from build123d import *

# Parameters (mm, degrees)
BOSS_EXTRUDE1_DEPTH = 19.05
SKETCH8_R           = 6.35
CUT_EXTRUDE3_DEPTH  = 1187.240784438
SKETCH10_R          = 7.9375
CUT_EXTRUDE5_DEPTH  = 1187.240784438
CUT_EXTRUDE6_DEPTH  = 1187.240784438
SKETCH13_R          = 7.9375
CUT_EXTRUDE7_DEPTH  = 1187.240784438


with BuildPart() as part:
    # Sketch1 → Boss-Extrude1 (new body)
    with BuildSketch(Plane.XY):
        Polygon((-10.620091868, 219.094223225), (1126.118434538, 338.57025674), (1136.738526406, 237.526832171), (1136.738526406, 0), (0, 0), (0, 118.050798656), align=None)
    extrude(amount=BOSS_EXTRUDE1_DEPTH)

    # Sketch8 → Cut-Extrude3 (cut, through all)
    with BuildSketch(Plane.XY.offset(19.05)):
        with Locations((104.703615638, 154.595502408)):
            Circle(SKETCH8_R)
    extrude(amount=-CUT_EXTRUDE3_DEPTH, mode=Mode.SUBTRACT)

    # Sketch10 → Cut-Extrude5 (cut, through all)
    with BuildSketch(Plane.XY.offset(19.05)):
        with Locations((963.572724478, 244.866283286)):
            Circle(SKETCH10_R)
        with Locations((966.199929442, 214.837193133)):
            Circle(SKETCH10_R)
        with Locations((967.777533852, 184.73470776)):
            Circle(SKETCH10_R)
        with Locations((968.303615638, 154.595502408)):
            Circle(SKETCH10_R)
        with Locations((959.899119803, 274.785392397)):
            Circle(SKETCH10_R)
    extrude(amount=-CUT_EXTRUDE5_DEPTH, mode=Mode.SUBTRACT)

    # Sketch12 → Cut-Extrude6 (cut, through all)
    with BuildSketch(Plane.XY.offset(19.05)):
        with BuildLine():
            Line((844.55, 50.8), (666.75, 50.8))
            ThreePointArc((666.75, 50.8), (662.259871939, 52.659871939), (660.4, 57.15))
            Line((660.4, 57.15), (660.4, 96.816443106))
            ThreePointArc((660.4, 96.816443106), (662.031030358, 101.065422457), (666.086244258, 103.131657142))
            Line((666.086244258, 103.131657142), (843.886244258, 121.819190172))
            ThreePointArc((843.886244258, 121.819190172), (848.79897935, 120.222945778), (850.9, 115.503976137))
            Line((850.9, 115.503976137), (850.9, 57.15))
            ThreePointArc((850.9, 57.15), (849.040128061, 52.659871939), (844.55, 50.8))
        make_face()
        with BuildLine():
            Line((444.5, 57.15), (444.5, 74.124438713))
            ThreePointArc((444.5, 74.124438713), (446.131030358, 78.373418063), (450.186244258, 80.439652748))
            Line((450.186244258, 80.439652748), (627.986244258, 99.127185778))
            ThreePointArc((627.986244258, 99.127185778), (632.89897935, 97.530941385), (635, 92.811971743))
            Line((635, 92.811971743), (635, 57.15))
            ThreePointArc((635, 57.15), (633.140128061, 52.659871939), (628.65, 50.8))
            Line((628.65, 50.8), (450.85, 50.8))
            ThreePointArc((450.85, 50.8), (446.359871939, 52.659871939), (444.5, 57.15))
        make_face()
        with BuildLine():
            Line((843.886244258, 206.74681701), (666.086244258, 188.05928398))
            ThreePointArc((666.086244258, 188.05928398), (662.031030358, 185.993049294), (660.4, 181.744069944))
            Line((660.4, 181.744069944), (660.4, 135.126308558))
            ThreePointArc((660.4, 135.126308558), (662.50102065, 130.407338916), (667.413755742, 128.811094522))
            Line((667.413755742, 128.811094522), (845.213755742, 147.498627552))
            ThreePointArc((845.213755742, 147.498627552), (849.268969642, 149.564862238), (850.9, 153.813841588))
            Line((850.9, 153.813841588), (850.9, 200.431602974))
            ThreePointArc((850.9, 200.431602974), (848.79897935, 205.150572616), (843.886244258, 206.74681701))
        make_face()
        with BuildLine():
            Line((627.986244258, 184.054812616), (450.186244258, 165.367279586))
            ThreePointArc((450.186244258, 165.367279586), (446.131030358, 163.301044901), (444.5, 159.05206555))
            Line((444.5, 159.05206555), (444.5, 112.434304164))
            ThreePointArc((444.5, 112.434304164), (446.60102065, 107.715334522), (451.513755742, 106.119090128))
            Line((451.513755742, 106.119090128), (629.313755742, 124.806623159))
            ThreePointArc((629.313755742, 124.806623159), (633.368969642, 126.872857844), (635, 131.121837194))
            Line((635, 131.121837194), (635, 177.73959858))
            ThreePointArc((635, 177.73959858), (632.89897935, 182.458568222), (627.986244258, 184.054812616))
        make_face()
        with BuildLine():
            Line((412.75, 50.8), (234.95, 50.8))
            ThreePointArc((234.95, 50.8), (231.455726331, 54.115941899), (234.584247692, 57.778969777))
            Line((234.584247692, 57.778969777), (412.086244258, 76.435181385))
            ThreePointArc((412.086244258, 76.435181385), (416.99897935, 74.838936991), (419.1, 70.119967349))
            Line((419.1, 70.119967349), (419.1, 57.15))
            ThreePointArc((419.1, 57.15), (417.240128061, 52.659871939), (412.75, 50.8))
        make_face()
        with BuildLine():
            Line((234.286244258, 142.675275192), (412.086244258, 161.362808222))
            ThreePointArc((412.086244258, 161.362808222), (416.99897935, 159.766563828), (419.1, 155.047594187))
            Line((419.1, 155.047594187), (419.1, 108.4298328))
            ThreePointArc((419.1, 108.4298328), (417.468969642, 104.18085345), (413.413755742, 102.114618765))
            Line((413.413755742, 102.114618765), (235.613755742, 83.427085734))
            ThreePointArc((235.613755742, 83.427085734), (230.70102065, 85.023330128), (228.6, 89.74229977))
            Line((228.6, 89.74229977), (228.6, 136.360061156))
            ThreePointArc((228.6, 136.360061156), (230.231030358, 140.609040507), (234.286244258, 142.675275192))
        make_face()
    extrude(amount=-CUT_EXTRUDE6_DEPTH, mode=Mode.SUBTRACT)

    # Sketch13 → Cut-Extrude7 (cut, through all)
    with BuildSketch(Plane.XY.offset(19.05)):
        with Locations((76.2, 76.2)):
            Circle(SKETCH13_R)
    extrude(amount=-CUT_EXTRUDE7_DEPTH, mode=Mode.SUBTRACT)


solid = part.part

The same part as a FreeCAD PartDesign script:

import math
import FreeCAD as App
import Part
import Sketcher
from FreeCAD import Vector
Q = App.Units.Quantity

doc = App.newDocument("Part")
body = doc.addObject("PartDesign::Body", "Body")

# Sketch on XY plane
sketch1 = body.newObject("Sketcher::SketchObject", "Sketch")
sketch1.AttachmentSupport = (doc.getObject("XY_Plane"), [""])
sketch1.MapMode = "FlatFace"
sketch1.addGeometry([
    Part.LineSegment(Vector(1126, 339, 0), Vector(-11, 219, 0)),  # 0
    Part.LineSegment(Vector(-11, 219, 0), Vector(0, 118, 0)),  # 1
    Part.LineSegment(Vector(0, 118, 0), Vector(0, 0, 0)),  # 2
    Part.LineSegment(Vector(0, 0, 0), Vector(1137, 0, 0)),  # 3
    Part.LineSegment(Vector(1137, 0, 0), Vector(1137, 238, 0)),  # 4
    Part.LineSegment(Vector(1137, 238, 0), Vector(1126, 339, 0)),  # 5
], False)
sketch1.addConstraint([
    Sketcher.Constraint("Coincident", 0, 2, 1, 1),
    Sketcher.Constraint("Coincident", 1, 2, 2, 1),
    Sketcher.Constraint("Coincident", 2, 2, 3, 1),
    Sketcher.Constraint("Coincident", 3, 2, 4, 1),
    Sketcher.Constraint("Coincident", 4, 2, 5, 1),
    Sketcher.Constraint("Coincident", 5, 2, 0, 1),
    Sketcher.Constraint("Vertical", 2),
    Sketcher.Constraint("Horizontal", 3),
    Sketcher.Constraint("Vertical", 4),
    Sketcher.Constraint("Coincident", 2, 2, -1, 1),
    Sketcher.Constraint("Perpendicular", 0, 1),
    Sketcher.Constraint("Parallel", 1, 5),
    Sketcher.Constraint("Equal", 1, 5),
    Sketcher.Constraint("Distance", 0, Q("45 in")),
    Sketcher.Constraint("Distance", 1, Q("4 in")),
    Sketcher.Constraint("Angle", 0, Q("-174 deg")),
    Sketcher.Constraint("DistanceY", 2, 2, 2, 1, 118.050799),
])
pad1 = body.newObject("PartDesign::Pad", "Pad")
pad1.Profile = sketch1
pad1.Length = Q("0.75 in")

# Sketch on XY plane
sketch2 = body.newObject("Sketcher::SketchObject", "Sketch001")
sketch2.AttachmentSupport = (doc.getObject("XY_Plane"), [""])
sketch2.MapMode = "FlatFace"
sketch2.AttachmentOffset = App.Placement(Vector(0, 0, 0.75 * 25.4), App.Rotation())
sketch2.addGeometry(Part.Circle(Vector(105, 155, 0), Vector(0, 0, 1), 6), False)
sketch2.addConstraint([
    Sketcher.Constraint("Diameter", 0, Q("0.5 in")),
    Sketcher.Constraint("DistanceX", -1, 1, 0, 3, 104.703616),
    Sketcher.Constraint("DistanceY", -1, 1, 0, 3, 154.595502),
])
pocket1 = body.newObject("PartDesign::Pocket", "Pocket")
pocket1.Profile = sketch2
pocket1.Type = "ThroughAll"

# Sketch on XY plane
sketch3 = body.newObject("Sketcher::SketchObject", "Sketch002")
sketch3.AttachmentSupport = (doc.getObject("XY_Plane"), [""])
sketch3.MapMode = "FlatFace"
sketch3.AttachmentOffset = App.Placement(Vector(0, 0, 0.75 * 25.4), App.Rotation())
sketch3.addGeometry([
    Part.Circle(Vector(964, 245, 0), Vector(0, 0, 1), 8),  # 0
    Part.Circle(Vector(966, 215, 0), Vector(0, 0, 1), 8),  # 1
    Part.Circle(Vector(968, 185, 0), Vector(0, 0, 1), 8),  # 2
    Part.Circle(Vector(968, 155, 0), Vector(0, 0, 1), 8),  # 3
    Part.Circle(Vector(960, 275, 0), Vector(0, 0, 1), 8),  # 4
], False)
sketch3.addConstraint([
    Sketcher.Constraint("Equal", 0, 1),
    Sketcher.Constraint("Equal", 1, 2),
    Sketcher.Constraint("Equal", 2, 3),
    Sketcher.Constraint("Equal", 3, 4),
    Sketcher.Constraint("Diameter", 0, Q("0.625 in")),
    Sketcher.Constraint("DistanceY", 1, 3, 4, 3, 59.948199),
    Sketcher.Constraint("DistanceX", -1, 1, 1, 3, 966.199929),
    Sketcher.Constraint("DistanceX", -1, 1, 4, 3, 959.89912),
    Sketcher.Constraint("DistanceY", 1, 3, 0, 3, 30.02909),
    Sketcher.Constraint("DistanceX", 0, 3, 2, 3, 4.204809),
    Sketcher.Constraint("DistanceX", 2, 3, 3, 3, 0.526082),
    Sketcher.Constraint("DistanceY", 3, 3, 1, 3, 60.241691),
    Sketcher.Constraint("DistanceX", -1, 1, 0, 3, 963.572724),
    Sketcher.Constraint("DistanceY", -1, 1, 0, 3, 244.866283),
    Sketcher.Constraint("DistanceY", -1, 1, 2, 3, 184.734708),
])
pocket2 = body.newObject("PartDesign::Pocket", "Pocket001")
pocket2.Profile = sketch3
pocket2.Type = "ThroughAll"

# Sketch on XY plane
sketch4 = body.newObject("Sketcher::SketchObject", "Sketch003")
sketch4.AttachmentSupport = (doc.getObject("XY_Plane"), [""])
sketch4.MapMode = "FlatFace"
sketch4.AttachmentOffset = App.Placement(Vector(0, 0, 0.75 * 25.4), App.Rotation())
sketch4.addGeometry([
    Part.LineSegment(Vector(666.8, 50.8, 0), Vector(844.5, 50.8, 0)),  # 0
    Part.ArcOfCircle(Part.Circle(Vector(844.6, 57.1, 0), Vector(0, 0, 1), 6.3), math.radians(-90), math.radians(0)),  # 1
    Part.LineSegment(Vector(850.9, 57.1, 0), Vector(850.9, 115.5, 0)),  # 2
    Part.ArcOfCircle(Part.Circle(Vector(844.5, 115.5, 0), Vector(0, 0, 1), 6.4), math.radians(0), math.radians(96)),  # 3
    Part.LineSegment(Vector(843.9, 121.8, 0), Vector(666.1, 103.1, 0)),  # 4
    Part.ArcOfCircle(Part.Circle(Vector(666.7, 96.8, 0), Vector(0, 0, 1), 6.3), math.radians(96), math.radians(180)),  # 5
    Part.LineSegment(Vector(660.4, 96.8, 0), Vector(660.4, 57.1, 0)),  # 6
    Part.ArcOfCircle(Part.Circle(Vector(666.7, 57.1, 0), Vector(0, 0, 1), 6.3), math.radians(180), math.radians(270)),  # 7
    Part.LineSegment(Vector(444.5, 74.1, 0), Vector(444.5, 57.1, 0)),  # 8
    Part.ArcOfCircle(Part.Circle(Vector(450.8, 57.1, 0), Vector(0, 0, 1), 6.3), math.radians(180), math.radians(270)),  # 9
    Part.LineSegment(Vector(450.9, 50.8, 0), Vector(628.6, 50.8, 0)),  # 10
    Part.ArcOfCircle(Part.Circle(Vector(628.7, 57.1, 0), Vector(0, 0, 1), 6.3), math.radians(-90), math.radians(0)),  # 11
    Part.LineSegment(Vector(635, 57.1, 0), Vector(635, 92.8, 0)),  # 12
    Part.ArcOfCircle(Part.Circle(Vector(628.7, 92.8, 0), Vector(0, 0, 1), 6.3), math.radians(0), math.radians(96)),  # 13
    Part.LineSegment(Vector(628, 99.1, 0), Vector(450.2, 80.4, 0)),  # 14
    Part.ArcOfCircle(Part.Circle(Vector(450.8, 74.1, 0), Vector(0, 0, 1), 6.3), math.radians(96), math.radians(180)),  # 15
    Part.LineSegment(Vector(843.9, 206.7, 0), Vector(666.1, 188.1, 0)),  # 16
    Part.ArcOfCircle(Part.Circle(Vector(666.8, 181.7, 0), Vector(0, 0, 1), 6.4), math.radians(96), math.radians(180)),  # 17
    Part.LineSegment(Vector(660.4, 181.7, 0), Vector(660.4, 135.1, 0)),  # 18
    Part.ArcOfCircle(Part.Circle(Vector(666.8, 135.1, 0), Vector(0, 0, 1), 6.4), math.radians(180), math.radians(276)),  # 19
    Part.LineSegment(Vector(667.4, 128.8, 0), Vector(845.2, 147.5, 0)),  # 20
    Part.ArcOfCircle(Part.Circle(Vector(844.5, 153.8, 0), Vector(0, 0, 1), 6.4), math.radians(-84), math.radians(0)),  # 21
    Part.LineSegment(Vector(850.9, 153.8, 0), Vector(850.9, 200.4, 0)),  # 22
    Part.ArcOfCircle(Part.Circle(Vector(844.5, 200.4, 0), Vector(0, 0, 1), 6.4), math.radians(0), math.radians(96)),  # 23
    Part.LineSegment(Vector(628, 184.1, 0), Vector(450.2, 165.4, 0)),  # 24
    Part.ArcOfCircle(Part.Circle(Vector(450.8, 159.1, 0), Vector(0, 0, 1), 6.3), math.radians(96), math.radians(180)),  # 25
    Part.LineSegment(Vector(444.5, 159.1, 0), Vector(444.5, 112.4, 0)),  # 26
    Part.ArcOfCircle(Part.Circle(Vector(450.9, 112.4, 0), Vector(0, 0, 1), 6.4), math.radians(180), math.radians(276)),  # 27
    Part.LineSegment(Vector(451.5, 106.1, 0), Vector(629.3, 124.8, 0)),  # 28
    Part.ArcOfCircle(Part.Circle(Vector(628.7, 131.1, 0), Vector(0, 0, 1), 6.3), math.radians(-84), math.radians(0)),  # 29
    Part.LineSegment(Vector(635, 131.1, 0), Vector(635, 177.7, 0)),  # 30
    Part.ArcOfCircle(Part.Circle(Vector(628.6, 177.7, 0), Vector(0, 0, 1), 6.4), math.radians(0), math.radians(96)),  # 31
    Part.LineSegment(Vector(234.9, 50.8, 0), Vector(412.8, 50.8, 0)),  # 32
    Part.ArcOfCircle(Part.Circle(Vector(412.8, 57.1, 0), Vector(0, 0, 1), 6.3), math.radians(-90), math.radians(0)),  # 33
    Part.LineSegment(Vector(419.1, 57.1, 0), Vector(419.1, 70.1, 0)),  # 34
    Part.ArcOfCircle(Part.Circle(Vector(412.7, 70.1, 0), Vector(0, 0, 1), 6.4), math.radians(0), math.radians(96)),  # 35
    Part.LineSegment(Vector(412.1, 76.4, 0), Vector(234.6, 57.8, 0)),  # 36
    Part.ArcOfCircle(Part.Circle(Vector(234.9, 54.3, 0), Vector(0, 0, 1), 3.5), math.radians(96), math.radians(270)),  # 37
    Part.LineSegment(Vector(412.1, 161.4, 0), Vector(234.3, 142.7, 0)),  # 38
    Part.ArcOfCircle(Part.Circle(Vector(234.9, 136.4, 0), Vector(0, 0, 1), 6.3), math.radians(96), math.radians(180)),  # 39
    Part.LineSegment(Vector(228.6, 136.4, 0), Vector(228.6, 89.7, 0)),  # 40
    Part.ArcOfCircle(Part.Circle(Vector(235, 89.7, 0), Vector(0, 0, 1), 6.4), math.radians(180), math.radians(276)),  # 41
    Part.LineSegment(Vector(235.6, 83.4, 0), Vector(413.4, 102.1, 0)),  # 42
    Part.ArcOfCircle(Part.Circle(Vector(412.8, 108.4, 0), Vector(0, 0, 1), 6.3), math.radians(-84), math.radians(0)),  # 43
    Part.LineSegment(Vector(419.1, 108.4, 0), Vector(419.1, 155, 0)),  # 44
    Part.ArcOfCircle(Part.Circle(Vector(412.7, 155, 0), Vector(0, 0, 1), 6.4), math.radians(0), math.radians(96)),  # 45
], False)
sketch4.addConstraint([
    Sketcher.Constraint("Tangent", 0, 2, 1, 1),
    Sketcher.Constraint("Tangent", 1, 2, 2, 1),
    Sketcher.Constraint("Tangent", 2, 2, 3, 1),
    Sketcher.Constraint("Tangent", 3, 2, 4, 1),
    Sketcher.Constraint("Tangent", 4, 2, 5, 1),
    Sketcher.Constraint("Tangent", 5, 2, 6, 1),
    Sketcher.Constraint("Tangent", 6, 2, 7, 1),
    Sketcher.Constraint("Tangent", 7, 2, 0, 1),
    Sketcher.Constraint("Tangent", 8, 2, 9, 1),
    Sketcher.Constraint("Tangent", 9, 2, 10, 1),
    Sketcher.Constraint("Tangent", 10, 2, 11, 1),
    Sketcher.Constraint("Tangent", 11, 2, 12, 1),
    Sketcher.Constraint("Tangent", 12, 2, 13, 1),
    Sketcher.Constraint("Tangent", 13, 2, 14, 1),
    Sketcher.Constraint("Tangent", 14, 2, 15, 1),
    Sketcher.Constraint("Tangent", 15, 2, 8, 1),
    Sketcher.Constraint("Tangent", 16, 2, 17, 1),
    Sketcher.Constraint("Tangent", 17, 2, 18, 1),
    Sketcher.Constraint("Tangent", 18, 2, 19, 1),
    Sketcher.Constraint("Tangent", 19, 2, 20, 1),
    Sketcher.Constraint("Tangent", 20, 2, 21, 1),
    Sketcher.Constraint("Tangent", 21, 2, 22, 1),
    Sketcher.Constraint("Tangent", 22, 2, 23, 1),
    Sketcher.Constraint("Tangent", 23, 2, 16, 1),
    Sketcher.Constraint("Tangent", 24, 2, 25, 1),
    Sketcher.Constraint("Tangent", 25, 2, 26, 1),
    Sketcher.Constraint("Tangent", 26, 2, 27, 1),
    Sketcher.Constraint("Tangent", 27, 2, 28, 1),
    Sketcher.Constraint("Tangent", 28, 2, 29, 1),
    Sketcher.Constraint("Tangent", 29, 2, 30, 1),
    Sketcher.Constraint("Tangent", 30, 2, 31, 1),
    Sketcher.Constraint("Tangent", 31, 2, 24, 1),
    Sketcher.Constraint("Tangent", 32, 2, 33, 1),
    Sketcher.Constraint("Tangent", 33, 2, 34, 1),
    Sketcher.Constraint("Tangent", 34, 2, 35, 1),
    Sketcher.Constraint("Tangent", 35, 2, 36, 1),
    Sketcher.Constraint("Tangent", 36, 2, 37, 1),
    Sketcher.Constraint("Tangent", 37, 2, 32, 1),
    Sketcher.Constraint("Tangent", 38, 2, 39, 1),
    Sketcher.Constraint("Tangent", 39, 2, 40, 1),
    Sketcher.Constraint("Tangent", 40, 2, 41, 1),
    Sketcher.Constraint("Tangent", 41, 2, 42, 1),
    Sketcher.Constraint("Tangent", 42, 2, 43, 1),
    Sketcher.Constraint("Tangent", 43, 2, 44, 1),
    Sketcher.Constraint("Tangent", 44, 2, 45, 1),
    Sketcher.Constraint("Tangent", 45, 2, 38, 1),
    Sketcher.Constraint("Horizontal", 0),
    Sketcher.Constraint("Vertical", 2),
    Sketcher.Constraint("Vertical", 6),
    Sketcher.Constraint("Vertical", 8),
    Sketcher.Constraint("Horizontal", 10),
    Sketcher.Constraint("Vertical", 12),
    Sketcher.Constraint("Vertical", 18),
    Sketcher.Constraint("Vertical", 22),
    Sketcher.Constraint("Vertical", 26),
    Sketcher.Constraint("Vertical", 30),
    Sketcher.Constraint("Horizontal", 32),
    Sketcher.Constraint("Vertical", 34),
    Sketcher.Constraint("Vertical", 40),
    Sketcher.Constraint("Vertical", 44),
    Sketcher.Constraint("Equal", 1, 3),
    Sketcher.Constraint("Equal", 3, 5),
    Sketcher.Constraint("Equal", 5, 7),
    Sketcher.Constraint("Equal", 7, 9),
    Sketcher.Constraint("Equal", 9, 11),
    Sketcher.Constraint("Equal", 11, 13),
    Sketcher.Constraint("Equal", 13, 15),
    Sketcher.Constraint("Equal", 15, 17),
    Sketcher.Constraint("Equal", 17, 19),
    Sketcher.Constraint("Equal", 19, 21),
    Sketcher.Constraint("Equal", 21, 23),
    Sketcher.Constraint("Equal", 23, 25),
    Sketcher.Constraint("Equal", 25, 27),
    Sketcher.Constraint("Equal", 27, 29),
    Sketcher.Constraint("Equal", 29, 31),
    Sketcher.Constraint("Equal", 31, 33),
    Sketcher.Constraint("Equal", 33, 35),
    Sketcher.Constraint("Equal", 35, 39),
    Sketcher.Constraint("Equal", 39, 41),
    Sketcher.Constraint("Equal", 41, 43),
    Sketcher.Constraint("Equal", 43, 45),
    Sketcher.Constraint("Parallel", 4, 14),
    Sketcher.Constraint("Parallel", 14, 16),
    Sketcher.Constraint("Parallel", 16, 20),
    Sketcher.Constraint("Parallel", 20, 24),
    Sketcher.Constraint("Parallel", 24, 28),
    Sketcher.Constraint("Parallel", 28, 36),
    Sketcher.Constraint("Parallel", 36, 38),
    Sketcher.Constraint("Parallel", 38, 42),
    Sketcher.Constraint("Horizontal", 7, 3, 9, 3),
    Sketcher.Constraint("Horizontal", 11, 3, 33, 3),
    Sketcher.Constraint("Vertical", 7, 3, 17, 3),
    Sketcher.Constraint("Vertical", 3, 3, 21, 3),
    Sketcher.Constraint("Vertical", 15, 3, 25, 3),
    Sketcher.Constraint("Vertical", 13, 3, 29, 3),
    Sketcher.Constraint("Vertical", 37, 3, 39, 3),
    Sketcher.Constraint("Vertical", 35, 3, 43, 3),
    Sketcher.Constraint("Equal", 0, 10),
    Sketcher.Constraint("Equal", 10, 32),
    Sketcher.Constraint("Equal", 22, 26),
    Sketcher.Constraint("Equal", 30, 40),
    Sketcher.Constraint("DistanceX", 0, 1, 0, 2, Q("7 in")),
    Sketcher.Constraint("Radius", 1, Q("0.25 in")),
    Sketcher.Constraint("DistanceY", -1, 1, 0, 2, Q("2 in")),
    Sketcher.Constraint("DistanceX", -1, 1, 5, 2, Q("26 in")),
    Sketcher.Constraint("DistanceX", -1, 1, 11, 2, Q("25 in")),
    Sketcher.Constraint("DistanceX", -1, 1, 39, 2, Q("9 in")),
    Sketcher.Constraint("Angle", 4, Q("-174 deg")),
    Sketcher.Constraint("Radius", 37, 3.499069),
    Sketcher.Constraint("DistanceY", 8, 2, 8, 1, 16.974439),
    Sketcher.Constraint("DistanceY", 18, 2, 18, 1, 46.617761),
    Sketcher.Constraint("DistanceY", -1, 1, 31, 3, 177.739599),
    Sketcher.Constraint("DistanceY", -1, 1, 41, 3, 89.7423),
    Sketcher.Constraint("DistanceY", 2, 1, 2, 2, 58.353976),
    Sketcher.Constraint("DistanceY", -1, 1, 17, 3, 181.74407),
])
pocket3 = body.newObject("PartDesign::Pocket", "Pocket002")
pocket3.Profile = sketch4
pocket3.Type = "ThroughAll"

# Sketch on XY plane
sketch5 = body.newObject("Sketcher::SketchObject", "Sketch004")
sketch5.AttachmentSupport = (doc.getObject("XY_Plane"), [""])
sketch5.MapMode = "FlatFace"
sketch5.AttachmentOffset = App.Placement(Vector(0, 0, 0.75 * 25.4), App.Rotation())
sketch5.addGeometry(Part.Circle(Vector(76, 76, 0), Vector(0, 0, 1), 8), False)
sketch5.addConstraint([
    Sketcher.Constraint("Diameter", 0, Q("0.625 in")),
    Sketcher.Constraint("DistanceX", -1, 1, 0, 3, Q("3 in")),
    Sketcher.Constraint("DistanceY", -1, 1, 0, 3, Q("3 in")),
])
pocket4 = body.newObject("PartDesign::Pocket", "Pocket003")
pocket4.Profile = sketch5
pocket4.Type = "ThroughAll"

doc.recompute()
